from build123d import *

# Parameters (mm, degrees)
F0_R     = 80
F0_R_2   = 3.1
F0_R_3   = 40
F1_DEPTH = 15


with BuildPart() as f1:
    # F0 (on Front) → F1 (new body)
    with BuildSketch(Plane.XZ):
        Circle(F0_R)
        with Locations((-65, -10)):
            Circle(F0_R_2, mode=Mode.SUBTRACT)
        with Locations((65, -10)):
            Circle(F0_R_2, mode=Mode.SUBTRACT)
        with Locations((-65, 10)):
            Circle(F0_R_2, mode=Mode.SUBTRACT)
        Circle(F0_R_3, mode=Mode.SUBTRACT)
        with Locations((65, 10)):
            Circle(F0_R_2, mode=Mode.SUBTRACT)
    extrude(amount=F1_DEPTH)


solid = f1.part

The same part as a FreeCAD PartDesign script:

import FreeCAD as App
import Part
import Sketcher
from FreeCAD import Vector

doc = App.newDocument("Part")
body = doc.addObject("PartDesign::Body", "Body")

sketch1 = body.newObject("Sketcher::SketchObject", "Sketch")
sketch1.AttachmentSupport = (doc.getObject("XZ_Plane"), [""])
sketch1.MapMode = "FlatFace"
sketch1.addGeometry(Part.Circle(Vector(0, 0, 0), Vector(0, 0, 1), 80), False)
sketch1.addGeometry(Part.Circle(Vector(-65, -10, 0), Vector(0, 0, 1), 3.1), False)
sketch1.addGeometry(Part.Circle(Vector(65, -10, 0), Vector(0, 0, 1), 3.1), False)
sketch1.addGeometry(Part.Circle(Vector(-65, 10, 0), Vector(0, 0, 1), 3.1), False)
sketch1.addGeometry(Part.Circle(Vector(0, 0, 0), Vector(0, 0, 1), 40), False)
sketch1.addGeometry(Part.Circle(Vector(65, 10, 0), Vector(0, 0, 1), 3.1), False)
sketch1.addConstraint(Sketcher.Constraint("Coincident", 0, 3, -1, 1))
sketch1.addConstraint(Sketcher.Constraint("Coincident", 4, 3, -1, 1))
sketch1.addConstraint(Sketcher.Constraint("Equal", 1, 2))
sketch1.addConstraint(Sketcher.Constraint("Equal", 2, 3))
sketch1.addConstraint(Sketcher.Constraint("Equal", 3, 5))
sketch1.addConstraint(Sketcher.Constraint("Symmetric", 2, 3, 3, 3, -1, 1))
sketch1.addConstraint(Sketcher.Constraint("Symmetric", 1, 3, 5, 3, -1, 1))
sketch1.addConstraint(Sketcher.Constraint("Symmetric", 1, 3, 2, 3, -2))
sketch1.addConstraint(Sketcher.Constraint("Diameter", 0, 160.0))
sketch1.addConstraint(Sketcher.Constraint("Diameter", 4, 80.0))
sketch1.addConstraint(Sketcher.Constraint("Diameter", 1, 6.2))
sketch1.addConstraint(Sketcher.Constraint("DistanceX", 1, 3, -1, 1, 65.0))
sketch1.addConstraint(Sketcher.Constraint("DistanceY", 1, 3, -1, 1, 10.0))
pad1 = body.newObject("PartDesign::Pad", "Pad")
pad1.Profile = sketch1
pad1.Length = 15

doc.recompute()
